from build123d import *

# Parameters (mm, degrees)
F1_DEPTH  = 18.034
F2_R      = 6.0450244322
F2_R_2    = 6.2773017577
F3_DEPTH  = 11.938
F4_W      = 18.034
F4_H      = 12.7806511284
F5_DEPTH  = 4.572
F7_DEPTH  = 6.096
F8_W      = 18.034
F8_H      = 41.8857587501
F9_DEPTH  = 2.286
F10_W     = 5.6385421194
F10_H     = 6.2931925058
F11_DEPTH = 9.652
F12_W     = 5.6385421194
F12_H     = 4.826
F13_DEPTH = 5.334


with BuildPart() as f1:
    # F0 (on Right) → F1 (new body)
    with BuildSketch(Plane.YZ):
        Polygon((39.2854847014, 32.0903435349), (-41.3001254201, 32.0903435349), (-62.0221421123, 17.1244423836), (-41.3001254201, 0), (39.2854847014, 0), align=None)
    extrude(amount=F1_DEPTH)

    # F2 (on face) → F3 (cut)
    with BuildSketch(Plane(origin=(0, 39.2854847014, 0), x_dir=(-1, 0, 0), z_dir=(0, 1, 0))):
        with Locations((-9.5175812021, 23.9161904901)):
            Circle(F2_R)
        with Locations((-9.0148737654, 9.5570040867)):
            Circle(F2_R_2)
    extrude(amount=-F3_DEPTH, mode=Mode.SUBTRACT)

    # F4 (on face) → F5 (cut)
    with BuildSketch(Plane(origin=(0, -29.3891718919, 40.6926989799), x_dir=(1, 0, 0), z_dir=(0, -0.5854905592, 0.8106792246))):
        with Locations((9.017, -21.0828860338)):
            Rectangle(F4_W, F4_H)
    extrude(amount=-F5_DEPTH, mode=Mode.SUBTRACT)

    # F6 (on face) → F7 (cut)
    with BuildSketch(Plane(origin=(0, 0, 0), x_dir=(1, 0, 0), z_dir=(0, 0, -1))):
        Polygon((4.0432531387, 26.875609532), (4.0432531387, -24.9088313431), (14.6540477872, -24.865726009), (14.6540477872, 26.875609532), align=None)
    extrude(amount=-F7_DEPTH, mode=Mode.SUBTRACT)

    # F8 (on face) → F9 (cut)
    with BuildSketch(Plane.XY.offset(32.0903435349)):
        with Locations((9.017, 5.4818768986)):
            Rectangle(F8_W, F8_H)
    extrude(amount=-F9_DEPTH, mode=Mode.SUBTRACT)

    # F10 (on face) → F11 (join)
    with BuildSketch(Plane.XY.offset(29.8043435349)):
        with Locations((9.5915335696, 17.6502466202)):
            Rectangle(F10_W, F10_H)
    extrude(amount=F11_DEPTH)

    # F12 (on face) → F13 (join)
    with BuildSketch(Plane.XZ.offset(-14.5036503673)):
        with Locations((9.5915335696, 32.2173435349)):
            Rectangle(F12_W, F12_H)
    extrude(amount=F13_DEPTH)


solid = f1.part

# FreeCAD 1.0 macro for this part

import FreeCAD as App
import Part
import Sketcher
from FreeCAD import Vector
Q = App.Units.Quantity

doc = App.newDocument("Part")
body = doc.addObject("PartDesign::Body", "Body")

sketch1 = body.newObject("Sketcher::SketchObject", "Sketch")
sketch1.AttachmentSupport = (doc.getObject("YZ_Plane"), [""])
sketch1.MapMode = "FlatFace"
sketch1.addGeometry([
    Part.LineSegment(Vector(39.285485, 32.090344, 0), Vector(-41.300125, 32.090344, 0)),
    Part.LineSegment(Vector(-41.300125, 32.090344, 0), Vector(-62.022142, 17.124442, 0)),
    Part.LineSegment(Vector(-62.022142, 17.124442, 0), Vector(-41.300125, 0, 0)),
    Part.LineSegment(Vector(-41.300125, 0, 0), Vector(39.285485, 0, 0)),
    Part.LineSegment(Vector(39.285485, 0, 0), Vector(39.285485, 32.090344, 0)),
], False)
sketch1.addConstraint([
    Sketcher.Constraint("Coincident", 0, 2, 1, 1),
    Sketcher.Constraint("Coincident", 1, 2, 2, 1),
    Sketcher.Constraint("Coincident", 2, 2, 3, 1),
    Sketcher.Constraint("Coincident", 3, 2, 4, 1),
    Sketcher.Constraint("Coincident", 4, 2, 0, 1),
    Sketcher.Constraint("Horizontal", 0),
    Sketcher.Constraint("Horizontal", 3),
    Sketcher.Constraint("Vertical", 4),
    Sketcher.Constraint("PointOnObject", 2, 2, -1),
    Sketcher.Constraint("Vertical", 0, 2, 2, 2),
    Sketcher.Constraint("DistanceX", 0, 2, 0, 1, Q("80.58561 mm")),
    Sketcher.Constraint("DistanceY", 1, 2, 0, 2, Q("14.965901 mm")),
    Sketcher.Constraint("DistanceY", 4, 1, 4, 2, Q("32.090344 mm")),
    Sketcher.Constraint("Distance", 1, Q("25.561302 mm")),
    Sketcher.Constraint("DistanceX", 0, 2, -1, 1, Q("41.300125 mm")),
])
pad1 = body.newObject("PartDesign::Pad", "Pad")
pad1.Profile = sketch1
pad1.Length = Q("0.71 in")

sketch2 = body.newObject("Sketcher::SketchObject", "Sketch001")
sketch2.AttachmentSupport = (doc.getObject("XZ_Plane"), [""])
sketch2.MapMode = "FlatFace"
sketch2.AttachmentOffset = App.Placement(Vector(0, 0, -39.285485), App.Rotation())
sketch2.addGeometry([
    Part.Circle(Vector(9.517581, 23.91619, 0), Vector(0, 0, 1), 6.045024),
    Part.Circle(Vector(9.014874, 9.557004, 0), Vector(0, 0, 1), 6.277302),
], False)
sketch2.addConstraint([
    Sketcher.Constraint("Diameter", 0, Q("12.090049 mm")),
    Sketcher.Constraint("Diameter", 1, Q("12.554604 mm")),
    Sketcher.Constraint("DistanceX", -1, 1, 0, 3, Q("9.517581 mm")),
    Sketcher.Constraint("DistanceY", -1, 1, 0, 3, Q("23.91619 mm")),
    Sketcher.Constraint("DistanceX", -1, 1, 1, 3, Q("9.014874 mm")),
    Sketcher.Constraint("DistanceY", -1, 1, 1, 3, Q("9.557004 mm")),
])
pocket1 = body.newObject("PartDesign::Pocket", "Pocket")
pocket1.Profile = sketch2
pocket1.Length = Q("0.47 in")
pocket1.Reversed = True

sketch3 = body.newObject("Sketcher::SketchObject", "Sketch002")
sketch3.Placement = App.Placement(Vector(0, -29.389172, 40.692699), App.Rotation(Vector(1, 0, 0), Vector(0, 0.810679225, 0.585490559), Vector(0, -0.585490559, 0.810679225), "ZXY"))
sketch3.addGeometry([
    Part.LineSegment(Vector(0, -14.69256, 0), Vector(0, -27.473212, 0)),
    Part.LineSegment(Vector(0, -27.473212, 0), Vector(18.034, -27.473212, 0)),
    Part.LineSegment(Vector(18.034, -27.473212, 0), Vector(18.034, -14.69256, 0)),
    Part.LineSegment(Vector(18.034, -14.69256, 0), Vector(0, -14.69256, 0)),
], False)
sketch3.addConstraint([
    Sketcher.Constraint("Coincident", 0, 2, 1, 1),
    Sketcher.Constraint("Coincident", 1, 2, 2, 1),
    Sketcher.Constraint("Coincident", 2, 2, 3, 1),
    Sketcher.Constraint("Coincident", 3, 2, 0, 1),
    Sketcher.Constraint("Vertical", 0),
    Sketcher.Constraint("Horizontal", 1),
    Sketcher.Constraint("Vertical", 2),
    Sketcher.Constraint("Horizontal", 3),
    Sketcher.Constraint("PointOnObject", 0, 2, -2),
    Sketcher.Constraint("DistanceX", 1, 1, 1, 2, Q("0.71 in")),
    Sketcher.Constraint("DistanceY", 0, 2, 0, 1, Q("12.780651 mm")),
    Sketcher.Constraint("DistanceY", 0, 2, -1, 1, Q("27.473212 mm")),
])
pocket2 = body.newObject("PartDesign::Pocket", "Pocket001")
pocket2.Profile = sketch3
pocket2.Length = Q("0.18 in")

sketch4 = body.newObject("Sketcher::SketchObject", "Sketch003")
sketch4.AttachmentSupport = (doc.getObject("XY_Plane"), [""])
sketch4.MapMode = "FlatFace"
sketch4.addGeometry([
    Part.LineSegment(Vector(4.043253, -26.87561, 0), Vector(4.043253, 24.908831, 0)),
    Part.LineSegment(Vector(4.043253, 24.908831, 0), Vector(14.654048, 24.865726, 0)),
    Part.LineSegment(Vector(14.654048, 24.865726, 0), Vector(14.654048, -26.87561, 0)),
    Part.LineSegment(Vector(14.654048, -26.87561, 0), Vector(4.043253, -26.87561, 0)),
], False)
sketch4.addConstraint([
    Sketcher.Constraint("Coincident", 0, 2, 1, 1),
    Sketcher.Constraint("Coincident", 1, 2, 2, 1),
    Sketcher.Constraint("Coincident", 2, 2, 3, 1),
    Sketcher.Constraint("Coincident", 3, 2, 0, 1),
    Sketcher.Constraint("Vertical", 0),
    Sketcher.Constraint("Vertical", 2),
    Sketcher.Constraint("Horizontal", 3),
    Sketcher.Constraint("DistanceY", 0, 1, 0, 2, Q("51.784441 mm")),
    Sketcher.Constraint("DistanceX", 3, 2, 3, 1, Q("10.610795 mm")),
    Sketcher.Constraint("DistanceY", 2, 2, 2, 1, Q("51.741336 mm")),
    Sketcher.Constraint("DistanceY", -1, 1, 0, 2, Q("24.908831 mm")),
    Sketcher.Constraint("DistanceX", -1, 1, 0, 2, Q("4.043253 mm")),
])
pocket3 = body.newObject("PartDesign::Pocket", "Pocket002")
pocket3.Profile = sketch4
pocket3.Length = Q("0.24 in")
pocket3.Reversed = True

sketch5 = body.newObject("Sketcher::SketchObject", "Sketch004")
sketch5.AttachmentSupport = (doc.getObject("XY_Plane"), [""])
sketch5.MapMode = "FlatFace"
sketch5.AttachmentOffset = App.Placement(Vector(0, 0, 32.090344), App.Rotation())
sketch5.addGeometry([
    Part.LineSegment(Vector(0, 26.424756, 0), Vector(0, -15.461002, 0)),
    Part.LineSegment(Vector(0, -15.461002, 0), Vector(18.034, -15.461002, 0)),
    Part.LineSegment(Vector(18.034, -15.461002, 0), Vector(18.034, 26.424756, 0)),
    Part.LineSegment(Vector(18.034, 26.424756, 0), Vector(0, 26.424756, 0)),
], False)
sketch5.addConstraint([
    Sketcher.Constraint("Coincident", 0, 2, 1, 1),
    Sketcher.Constraint("Coincident", 1, 2, 2, 1),
    Sketcher.Constraint("Coincident", 2, 2, 3, 1),
    Sketcher.Constraint("Coincident", 3, 2, 0, 1),
    Sketcher.Constraint("Vertical", 0),
    Sketcher.Constraint("Horizontal", 1),
    Sketcher.Constraint("Vertical", 2),
    Sketcher.Constraint("Horizontal", 3),
    Sketcher.Constraint("PointOnObject", 0, 2, -2),
    Sketcher.Constraint("DistanceX", 1, 1, 1, 2, Q("0.71 in")),
    Sketcher.Constraint("DistanceY", 0, 2, 0, 1, Q("41.885759 mm")),
    Sketcher.Constraint("DistanceY", 0, 2, -1, 1, Q("15.461002 mm")),
])
pocket4 = body.newObject("PartDesign::Pocket", "Pocket003")
pocket4.Profile = sketch5
pocket4.Length = Q("0.09 in")

sketch6 = body.newObject("Sketcher::SketchObject", "Sketch005")
sketch6.AttachmentSupport = (doc.getObject("XY_Plane"), [""])
sketch6.MapMode = "FlatFace"
sketch6.AttachmentOffset = App.Placement(Vector(0, 0, 29.804344), App.Rotation())
sketch6.addGeometry([
    Part.LineSegment(Vector(6.772263, 20.796843, 0), Vector(6.772263, 14.50365, 0)),
    Part.LineSegment(Vector(6.772263, 14.50365, 0), Vector(12.410805, 14.50365, 0)),
    Part.LineSegment(Vector(12.410805, 14.50365, 0), Vector(12.410805, 20.796843, 0)),
    Part.LineSegment(Vector(12.410805, 20.796843, 0), Vector(6.772263, 20.796843, 0)),
], False)
sketch6.addConstraint([
    Sketcher.Constraint("Coincident", 0, 2, 1, 1),
    Sketcher.Constraint("Coincident", 1, 2, 2, 1),
    Sketcher.Constraint("Coincident", 2, 2, 3, 1),
    Sketcher.Constraint("Coincident", 3, 2, 0, 1),
    Sketcher.Constraint("Vertical", 0),
    Sketcher.Constraint("Horizontal", 1),
    Sketcher.Constraint("Vertical", 2),
    Sketcher.Constraint("Horizontal", 3),
    Sketcher.Constraint("DistanceX", 1, 1, 1, 2, Q("5.638542 mm")),
    Sketcher.Constraint("DistanceY", 0, 2, 0, 1, Q("6.293193 mm")),
    Sketcher.Constraint("DistanceY", -1, 1, 0, 2, Q("14.50365 mm")),
    Sketcher.Constraint("DistanceX", -1, 1, 0, 2, Q("6.772263 mm")),
])
pad2 = body.newObject("PartDesign::Pad", "Pad001")
pad2.Profile = sketch6
pad2.Length = Q("0.38 in")

sketch7 = body.newObject("Sketcher::SketchObject", "Sketch006")
sketch7.AttachmentSupport = (doc.getObject("XZ_Plane"), [""])
sketch7.MapMode = "FlatFace"
sketch7.AttachmentOffset = App.Placement(Vector(0, 0, -14.50365), App.Rotation())
sketch7.addGeometry([
    Part.LineSegment(Vector(6.772263, 34.630344, 0), Vector(6.772263, 29.804344, 0)),
    Part.LineSegment(Vector(6.772263, 29.804344, 0), Vector(12.410805, 29.804344, 0)),
    Part.LineSegment(Vector(12.410805, 29.804344, 0), Vector(12.410805, 34.630344, 0)),
    Part.LineSegment(Vector(12.410805, 34.630344, 0), Vector(6.772263, 34.630344, 0)),
], False)
sketch7.addConstraint([
    Sketcher.Constraint("Coincident", 0, 2, 1, 1),
    Sketcher.Constraint("Coincident", 1, 2, 2, 1),
    Sketcher.Constraint("Coincident", 2, 2, 3, 1),
    Sketcher.Constraint("Coincident", 3, 2, 0, 1),
    Sketcher.Constraint("Vertical", 0),
    Sketcher.Constraint("Horizontal", 1),
    Sketcher.Constraint("Vertical", 2),
    Sketcher.Constraint("Horizontal", 3),
    Sketcher.Constraint("DistanceY", 0, 2, 0, 1, Q("0.19 in")),
    Sketcher.Constraint("DistanceX", 1, 1, 1, 2, Q("5.638542 mm")),
    Sketcher.Constraint("DistanceX", -1, 1, 0, 2, Q("6.772263 mm")),
    Sketcher.Constraint("DistanceY", -1, 1, 0, 2, Q("29.804344 mm")),
])
pad3 = body.newObject("PartDesign::Pad", "Pad002")
pad3.Profile = sketch7
pad3.Length = Q("0.21 in")

doc.recompute()
